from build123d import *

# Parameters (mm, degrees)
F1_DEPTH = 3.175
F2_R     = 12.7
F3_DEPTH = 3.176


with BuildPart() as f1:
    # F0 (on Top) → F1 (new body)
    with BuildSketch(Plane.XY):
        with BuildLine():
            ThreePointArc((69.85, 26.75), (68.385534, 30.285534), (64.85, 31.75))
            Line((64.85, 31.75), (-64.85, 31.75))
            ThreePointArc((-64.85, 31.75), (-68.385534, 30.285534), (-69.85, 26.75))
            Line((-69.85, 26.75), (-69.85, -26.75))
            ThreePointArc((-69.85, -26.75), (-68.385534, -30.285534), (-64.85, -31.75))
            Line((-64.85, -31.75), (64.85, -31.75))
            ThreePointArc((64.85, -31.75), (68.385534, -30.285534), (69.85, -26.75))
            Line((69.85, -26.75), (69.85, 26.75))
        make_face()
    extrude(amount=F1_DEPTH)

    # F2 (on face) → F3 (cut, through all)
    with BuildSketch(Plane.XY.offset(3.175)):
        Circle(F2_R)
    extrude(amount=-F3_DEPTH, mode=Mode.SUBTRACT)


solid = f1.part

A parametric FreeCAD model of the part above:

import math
import FreeCAD as App
import Part
import Sketcher
Q = App.Units.Quantity

doc = App.newDocument("Part")
body = doc.addObject("PartDesign::Body", "Body")

sketch1 = doc.addObject("Sketcher::SketchObject", "Sketch")
body.addObject(sketch1)
sketch1.AttachmentSupport = (doc.XY_Plane, [""])
sketch1.MapMode = "FlatFace"
sketch1.addGeometry(Part.ArcOfCircle(Part.Circle(App.Vector(64.9, 26.8, 0), App.Vector(0, 0, 1), 5), math.radians(0), math.radians(90)), False)
sketch1.addGeometry(Part.LineSegment(App.Vector(64.8, 31.8, 0), App.Vector(-64.8, 31.8, 0)), False)
sketch1.addGeometry(Part.ArcOfCircle(Part.Circle(App.Vector(-64.9, 26.8, 0), App.Vector(0, 0, 1), 5), math.radians(90), math.radians(180)), False)
sketch1.addGeometry(Part.LineSegment(App.Vector(-69.8, 26.8, 0), App.Vector(-69.8, -26.8, 0)), False)
sketch1.addGeometry(Part.ArcOfCircle(Part.Circle(App.Vector(-64.9, -26.8, 0), App.Vector(0, 0, 1), 5), math.radians(180), math.radians(270)), False)
sketch1.addGeometry(Part.LineSegment(App.Vector(-64.8, -31.8, 0), App.Vector(64.8, -31.8, 0)), False)
sketch1.addGeometry(Part.ArcOfCircle(Part.Circle(App.Vector(64.9, -26.8, 0), App.Vector(0, 0, 1), 5), math.radians(-90), math.radians(0)), False)
sketch1.addGeometry(Part.LineSegment(App.Vector(69.8, -26.8, 0), App.Vector(69.8, 26.8, 0)), False)
sketch1.addConstraint(Sketcher.Constraint("Tangent", 0, 2, 1, 1))
sketch1.addConstraint(Sketcher.Constraint("Tangent", 1, 2, 2, 1))
sketch1.addConstraint(Sketcher.Constraint("Tangent", 2, 2, 3, 1))
sketch1.addConstraint(Sketcher.Constraint("Tangent", 3, 2, 4, 1))
sketch1.addConstraint(Sketcher.Constraint("Tangent", 4, 2, 5, 1))
sketch1.addConstraint(Sketcher.Constraint("Tangent", 5, 2, 6, 1))
sketch1.addConstraint(Sketcher.Constraint("Tangent", 6, 2, 7, 1))
sketch1.addConstraint(Sketcher.Constraint("Tangent", 7, 2, 0, 1))
sketch1.addConstraint(Sketcher.Constraint("Horizontal", 1))
sketch1.addConstraint(Sketcher.Constraint("Vertical", 3))
sketch1.addConstraint(Sketcher.Constraint("Horizontal", 5))
sketch1.addConstraint(Sketcher.Constraint("Vertical", 7))
sketch1.addConstraint(Sketcher.Constraint("Equal", 0, 2))
sketch1.addConstraint(Sketcher.Constraint("Equal", 2, 4))
sketch1.addConstraint(Sketcher.Constraint("Equal", 4, 6))
sketch1.addConstraint(Sketcher.Constraint("Symmetric", 0, 3, 4, 3, -1, 1))
sketch1.addConstraint(Sketcher.Constraint("Radius", 0, Q("5 mm")))
sketch1.addConstraint(Sketcher.Constraint("DistanceX", 1, 2, 1, 1, Q("129.7 mm")))
sketch1.addConstraint(Sketcher.Constraint("DistanceY", 3, 2, 3, 1, Q("53.5 mm")))
pad1 = doc.addObject("PartDesign::Pad", "Pad")
body.addObject(pad1)
pad1.Profile = sketch1
pad1.Length = 3.175

sketch2 = doc.addObject("Sketcher::SketchObject", "Sketch001")
body.addObject(sketch2)
sketch2.AttachmentSupport = (doc.XY_Plane, [""])
sketch2.MapMode = "FlatFace"
sketch2.AttachmentOffset = App.Placement(App.Vector(0, 0, 3.175), App.Rotation())
sketch2.addGeometry(Part.Circle(App.Vector(0, 0, 0), App.Vector(0, 0, 1), 13), False)
sketch2.addConstraint(Sketcher.Constraint("Coincident", 0, 3, -1, 1))
sketch2.addConstraint(Sketcher.Constraint("Diameter", 0, Q("25.4 mm")))
pocket1 = doc.addObject("PartDesign::Pocket", "Pocket")
body.addObject(pocket1)
pocket1.Profile = sketch2
pocket1.Type = "ThroughAll"

doc.recompute()
